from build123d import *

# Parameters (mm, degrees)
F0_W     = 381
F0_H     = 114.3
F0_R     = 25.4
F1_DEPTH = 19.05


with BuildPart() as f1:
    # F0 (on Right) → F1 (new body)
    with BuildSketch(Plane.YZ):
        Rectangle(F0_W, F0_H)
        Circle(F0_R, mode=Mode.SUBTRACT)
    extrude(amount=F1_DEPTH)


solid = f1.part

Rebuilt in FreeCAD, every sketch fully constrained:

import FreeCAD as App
import Part
import Sketcher

V = App.Vector
Q = App.Units.Quantity


def add_polygon(sketch, points):
    """Adds a closed chain of lines whose ends are joined by coincident constraints."""
    first, n = sketch.GeometryCount, len(points)
    for a, b in zip(points, points[1:] + points[:1]):
        sketch.addGeometry(Part.LineSegment(App.Vector(*a, 0), App.Vector(*b, 0)), False)
    for i in range(n):
        sketch.addConstraint(Sketcher.Constraint("Coincident", first + i, 2, first + (i + 1) % n, 1))

doc = App.newDocument("Part")
body = doc.addObject("PartDesign::Body", "Body")

# Sketch on YZ plane
sketch1 = body.newObject("Sketcher::SketchObject", "Sketch")
sketch1.AttachmentSupport = (doc.getObject("YZ_Plane"), [""])
sketch1.MapMode = "FlatFace"
add_polygon(sketch1, [(-190, 57), (-190, -57), (190, -57), (190, 57)])  # lines 0-3
sketch1.addGeometry(Part.Circle(V(0, 0, 0), V(0, 0, 1), 25), False)  # 4
sketch1.addConstraint([
    Sketcher.Constraint("Vertical", 0),
    Sketcher.Constraint("Horizontal", 1),
    Sketcher.Constraint("Vertical", 2),
    Sketcher.Constraint("Horizontal", 3),
    Sketcher.Constraint("Coincident", 4, 3, -1, 1),
    Sketcher.Constraint("Symmetric", 0, 2, 2, 2, -1, 1),
    Sketcher.Constraint("Diameter", 4, Q("2 in")),
    Sketcher.Constraint("DistanceX", 1, 1, 1, 2, Q("15 in")),
    Sketcher.Constraint("DistanceY", 0, 2, 0, 1, Q("4.5 in")),
])
pad1 = body.newObject("PartDesign::Pad", "Pad")
pad1.Profile = sketch1
pad1.Length = Q("0.75 in")

doc.recompute()
